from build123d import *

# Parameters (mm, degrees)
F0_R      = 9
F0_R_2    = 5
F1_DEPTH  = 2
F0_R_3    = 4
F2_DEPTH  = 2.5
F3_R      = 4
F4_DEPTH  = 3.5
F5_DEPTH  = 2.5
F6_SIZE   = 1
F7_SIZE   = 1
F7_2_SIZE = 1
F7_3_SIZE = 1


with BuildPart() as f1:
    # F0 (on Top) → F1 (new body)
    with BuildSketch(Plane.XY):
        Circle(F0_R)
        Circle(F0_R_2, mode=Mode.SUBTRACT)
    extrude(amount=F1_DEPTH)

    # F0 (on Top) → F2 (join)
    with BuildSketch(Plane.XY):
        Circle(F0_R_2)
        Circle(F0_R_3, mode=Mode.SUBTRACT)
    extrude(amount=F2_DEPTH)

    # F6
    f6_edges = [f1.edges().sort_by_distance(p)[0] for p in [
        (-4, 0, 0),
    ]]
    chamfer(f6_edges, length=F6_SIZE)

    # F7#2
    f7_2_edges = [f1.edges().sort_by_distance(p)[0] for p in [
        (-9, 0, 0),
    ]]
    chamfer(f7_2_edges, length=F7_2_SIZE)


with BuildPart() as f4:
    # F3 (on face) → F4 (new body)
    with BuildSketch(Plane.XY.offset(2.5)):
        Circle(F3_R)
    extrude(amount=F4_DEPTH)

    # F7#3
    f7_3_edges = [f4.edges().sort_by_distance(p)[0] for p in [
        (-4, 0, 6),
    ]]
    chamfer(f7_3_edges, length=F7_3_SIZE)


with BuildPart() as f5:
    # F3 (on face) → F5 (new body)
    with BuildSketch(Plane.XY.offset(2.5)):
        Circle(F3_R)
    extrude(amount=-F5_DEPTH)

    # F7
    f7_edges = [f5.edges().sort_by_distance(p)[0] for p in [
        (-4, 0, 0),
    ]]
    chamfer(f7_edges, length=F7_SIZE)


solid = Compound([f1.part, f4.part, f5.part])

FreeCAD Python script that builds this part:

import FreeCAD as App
import Part
import Sketcher
Q = App.Units.Quantity


def edges_at(feature, points):
    """Names of the edges that pass closest to the given points."""
    edges = feature.Shape.Edges
    near = lambda p: min(range(len(edges)), key=lambda i: edges[i].distToShape(Part.Vertex(*p))[0])
    return sorted({f"Edge{near(p) + 1}" for p in points})

doc = App.newDocument("Part")
body = doc.addObject("PartDesign::Body", "Body")

sketch1 = body.newObject("Sketcher::SketchObject", "Sketch")
sketch1.AttachmentSupport = (doc.getObject("XY_Plane"), [""])
sketch1.MapMode = "FlatFace"
sketch1.addGeometry([
    Part.Circle(App.Vector(0, 0, 0), App.Vector(0, 0, 1), 9),
    Part.Circle(App.Vector(0, 0, 0), App.Vector(0, 0, 1), 5),
], False)
sketch1.addConstraint([
    Sketcher.Constraint("Coincident", 0, 3, -1, 1),
    Sketcher.Constraint("Coincident", 1, 3, -1, 1),
    Sketcher.Constraint("Diameter", 0, Q("18 mm")),
    Sketcher.Constraint("Diameter", 1, Q("10 mm")),
])
pad1 = body.newObject("PartDesign::Pad", "Pad")
pad1.Profile = sketch1
pad1.Length = 2

sketch2 = body.newObject("Sketcher::SketchObject", "Sketch001")
sketch2.AttachmentSupport = (doc.getObject("XY_Plane"), [""])
sketch2.MapMode = "FlatFace"
sketch2.addGeometry([
    Part.Circle(App.Vector(0, 0, 0), App.Vector(0, 0, 1), 5),
    Part.Circle(App.Vector(0, 0, 0), App.Vector(0, 0, 1), 4),
], False)
sketch2.addConstraint([
    Sketcher.Constraint("Coincident", 0, 3, -1, 1),
    Sketcher.Constraint("Coincident", 1, 3, -1, 1),
    Sketcher.Constraint("Diameter", 0, Q("10 mm")),
    Sketcher.Constraint("Diameter", 1, Q("8 mm")),
])
pad2 = body.newObject("PartDesign::Pad", "Pad001")
pad2.Profile = sketch2
pad2.Length = 2.5
doc.recompute()

chamfer = body.newObject("PartDesign::Chamfer", "Chamfer")
chamfer.Base = (pad2, edges_at(pad2, [(-4, 0, 0)]))
chamfer.Size = 1
doc.recompute()

chamfer2 = body.newObject("PartDesign::Chamfer", "Chamfer001")
chamfer2.Base = (chamfer, edges_at(chamfer, [(-9, 0, 0)]))
chamfer2.Size = 1
body2 = doc.addObject("PartDesign::Body", "Body001")

sketch3 = body2.newObject("Sketcher::SketchObject", "Sketch002")
sketch3.AttachmentSupport = (doc.getObject("XY_Plane001"), [""])
sketch3.MapMode = "FlatFace"
sketch3.AttachmentOffset = App.Placement(App.Vector(0, 0, 2.5), App.Rotation())
sketch3.addGeometry(Part.Circle(App.Vector(0, 0, 0), App.Vector(0, 0, 1), 4), False)
sketch3.addConstraint([
    Sketcher.Constraint("Coincident", 0, 3, -1, 1),
    Sketcher.Constraint("Diameter", 0, Q("8 mm")),
])
pad3 = body2.newObject("PartDesign::Pad", "Pad002")
pad3.Profile = sketch3
pad3.Length = 3.5
doc.recompute()

chamfer3 = body2.newObject("PartDesign::Chamfer", "Chamfer002")
chamfer3.Base = (pad3, edges_at(pad3, [(-4, 0, 6)]))
chamfer3.Size = 1
body3 = doc.addObject("PartDesign::Body", "Body002")

sketch4 = body3.newObject("Sketcher::SketchObject", "Sketch003")
sketch4.AttachmentSupport = (doc.getObject("XY_Plane002"), [""])
sketch4.MapMode = "FlatFace"
sketch4.AttachmentOffset = App.Placement(App.Vector(0, 0, 2.5), App.Rotation())
sketch4.addGeometry(Part.Circle(App.Vector(0, 0, 0), App.Vector(0, 0, 1), 4), False)
sketch4.addConstraint([
    Sketcher.Constraint("Coincident", 0, 3, -1, 1),
    Sketcher.Constraint("Diameter", 0, Q("8 mm")),
])
pad4 = body3.newObject("PartDesign::Pad", "Pad003")
pad4.Profile = sketch4
pad4.Length = 2.5
pad4.Reversed = True
doc.recompute()

chamfer4 = body3.newObject("PartDesign::Chamfer", "Chamfer003")
chamfer4.Base = (pad4, edges_at(pad4, [(-4, 0, 0)]))
chamfer4.Size = 1

doc.recompute()
